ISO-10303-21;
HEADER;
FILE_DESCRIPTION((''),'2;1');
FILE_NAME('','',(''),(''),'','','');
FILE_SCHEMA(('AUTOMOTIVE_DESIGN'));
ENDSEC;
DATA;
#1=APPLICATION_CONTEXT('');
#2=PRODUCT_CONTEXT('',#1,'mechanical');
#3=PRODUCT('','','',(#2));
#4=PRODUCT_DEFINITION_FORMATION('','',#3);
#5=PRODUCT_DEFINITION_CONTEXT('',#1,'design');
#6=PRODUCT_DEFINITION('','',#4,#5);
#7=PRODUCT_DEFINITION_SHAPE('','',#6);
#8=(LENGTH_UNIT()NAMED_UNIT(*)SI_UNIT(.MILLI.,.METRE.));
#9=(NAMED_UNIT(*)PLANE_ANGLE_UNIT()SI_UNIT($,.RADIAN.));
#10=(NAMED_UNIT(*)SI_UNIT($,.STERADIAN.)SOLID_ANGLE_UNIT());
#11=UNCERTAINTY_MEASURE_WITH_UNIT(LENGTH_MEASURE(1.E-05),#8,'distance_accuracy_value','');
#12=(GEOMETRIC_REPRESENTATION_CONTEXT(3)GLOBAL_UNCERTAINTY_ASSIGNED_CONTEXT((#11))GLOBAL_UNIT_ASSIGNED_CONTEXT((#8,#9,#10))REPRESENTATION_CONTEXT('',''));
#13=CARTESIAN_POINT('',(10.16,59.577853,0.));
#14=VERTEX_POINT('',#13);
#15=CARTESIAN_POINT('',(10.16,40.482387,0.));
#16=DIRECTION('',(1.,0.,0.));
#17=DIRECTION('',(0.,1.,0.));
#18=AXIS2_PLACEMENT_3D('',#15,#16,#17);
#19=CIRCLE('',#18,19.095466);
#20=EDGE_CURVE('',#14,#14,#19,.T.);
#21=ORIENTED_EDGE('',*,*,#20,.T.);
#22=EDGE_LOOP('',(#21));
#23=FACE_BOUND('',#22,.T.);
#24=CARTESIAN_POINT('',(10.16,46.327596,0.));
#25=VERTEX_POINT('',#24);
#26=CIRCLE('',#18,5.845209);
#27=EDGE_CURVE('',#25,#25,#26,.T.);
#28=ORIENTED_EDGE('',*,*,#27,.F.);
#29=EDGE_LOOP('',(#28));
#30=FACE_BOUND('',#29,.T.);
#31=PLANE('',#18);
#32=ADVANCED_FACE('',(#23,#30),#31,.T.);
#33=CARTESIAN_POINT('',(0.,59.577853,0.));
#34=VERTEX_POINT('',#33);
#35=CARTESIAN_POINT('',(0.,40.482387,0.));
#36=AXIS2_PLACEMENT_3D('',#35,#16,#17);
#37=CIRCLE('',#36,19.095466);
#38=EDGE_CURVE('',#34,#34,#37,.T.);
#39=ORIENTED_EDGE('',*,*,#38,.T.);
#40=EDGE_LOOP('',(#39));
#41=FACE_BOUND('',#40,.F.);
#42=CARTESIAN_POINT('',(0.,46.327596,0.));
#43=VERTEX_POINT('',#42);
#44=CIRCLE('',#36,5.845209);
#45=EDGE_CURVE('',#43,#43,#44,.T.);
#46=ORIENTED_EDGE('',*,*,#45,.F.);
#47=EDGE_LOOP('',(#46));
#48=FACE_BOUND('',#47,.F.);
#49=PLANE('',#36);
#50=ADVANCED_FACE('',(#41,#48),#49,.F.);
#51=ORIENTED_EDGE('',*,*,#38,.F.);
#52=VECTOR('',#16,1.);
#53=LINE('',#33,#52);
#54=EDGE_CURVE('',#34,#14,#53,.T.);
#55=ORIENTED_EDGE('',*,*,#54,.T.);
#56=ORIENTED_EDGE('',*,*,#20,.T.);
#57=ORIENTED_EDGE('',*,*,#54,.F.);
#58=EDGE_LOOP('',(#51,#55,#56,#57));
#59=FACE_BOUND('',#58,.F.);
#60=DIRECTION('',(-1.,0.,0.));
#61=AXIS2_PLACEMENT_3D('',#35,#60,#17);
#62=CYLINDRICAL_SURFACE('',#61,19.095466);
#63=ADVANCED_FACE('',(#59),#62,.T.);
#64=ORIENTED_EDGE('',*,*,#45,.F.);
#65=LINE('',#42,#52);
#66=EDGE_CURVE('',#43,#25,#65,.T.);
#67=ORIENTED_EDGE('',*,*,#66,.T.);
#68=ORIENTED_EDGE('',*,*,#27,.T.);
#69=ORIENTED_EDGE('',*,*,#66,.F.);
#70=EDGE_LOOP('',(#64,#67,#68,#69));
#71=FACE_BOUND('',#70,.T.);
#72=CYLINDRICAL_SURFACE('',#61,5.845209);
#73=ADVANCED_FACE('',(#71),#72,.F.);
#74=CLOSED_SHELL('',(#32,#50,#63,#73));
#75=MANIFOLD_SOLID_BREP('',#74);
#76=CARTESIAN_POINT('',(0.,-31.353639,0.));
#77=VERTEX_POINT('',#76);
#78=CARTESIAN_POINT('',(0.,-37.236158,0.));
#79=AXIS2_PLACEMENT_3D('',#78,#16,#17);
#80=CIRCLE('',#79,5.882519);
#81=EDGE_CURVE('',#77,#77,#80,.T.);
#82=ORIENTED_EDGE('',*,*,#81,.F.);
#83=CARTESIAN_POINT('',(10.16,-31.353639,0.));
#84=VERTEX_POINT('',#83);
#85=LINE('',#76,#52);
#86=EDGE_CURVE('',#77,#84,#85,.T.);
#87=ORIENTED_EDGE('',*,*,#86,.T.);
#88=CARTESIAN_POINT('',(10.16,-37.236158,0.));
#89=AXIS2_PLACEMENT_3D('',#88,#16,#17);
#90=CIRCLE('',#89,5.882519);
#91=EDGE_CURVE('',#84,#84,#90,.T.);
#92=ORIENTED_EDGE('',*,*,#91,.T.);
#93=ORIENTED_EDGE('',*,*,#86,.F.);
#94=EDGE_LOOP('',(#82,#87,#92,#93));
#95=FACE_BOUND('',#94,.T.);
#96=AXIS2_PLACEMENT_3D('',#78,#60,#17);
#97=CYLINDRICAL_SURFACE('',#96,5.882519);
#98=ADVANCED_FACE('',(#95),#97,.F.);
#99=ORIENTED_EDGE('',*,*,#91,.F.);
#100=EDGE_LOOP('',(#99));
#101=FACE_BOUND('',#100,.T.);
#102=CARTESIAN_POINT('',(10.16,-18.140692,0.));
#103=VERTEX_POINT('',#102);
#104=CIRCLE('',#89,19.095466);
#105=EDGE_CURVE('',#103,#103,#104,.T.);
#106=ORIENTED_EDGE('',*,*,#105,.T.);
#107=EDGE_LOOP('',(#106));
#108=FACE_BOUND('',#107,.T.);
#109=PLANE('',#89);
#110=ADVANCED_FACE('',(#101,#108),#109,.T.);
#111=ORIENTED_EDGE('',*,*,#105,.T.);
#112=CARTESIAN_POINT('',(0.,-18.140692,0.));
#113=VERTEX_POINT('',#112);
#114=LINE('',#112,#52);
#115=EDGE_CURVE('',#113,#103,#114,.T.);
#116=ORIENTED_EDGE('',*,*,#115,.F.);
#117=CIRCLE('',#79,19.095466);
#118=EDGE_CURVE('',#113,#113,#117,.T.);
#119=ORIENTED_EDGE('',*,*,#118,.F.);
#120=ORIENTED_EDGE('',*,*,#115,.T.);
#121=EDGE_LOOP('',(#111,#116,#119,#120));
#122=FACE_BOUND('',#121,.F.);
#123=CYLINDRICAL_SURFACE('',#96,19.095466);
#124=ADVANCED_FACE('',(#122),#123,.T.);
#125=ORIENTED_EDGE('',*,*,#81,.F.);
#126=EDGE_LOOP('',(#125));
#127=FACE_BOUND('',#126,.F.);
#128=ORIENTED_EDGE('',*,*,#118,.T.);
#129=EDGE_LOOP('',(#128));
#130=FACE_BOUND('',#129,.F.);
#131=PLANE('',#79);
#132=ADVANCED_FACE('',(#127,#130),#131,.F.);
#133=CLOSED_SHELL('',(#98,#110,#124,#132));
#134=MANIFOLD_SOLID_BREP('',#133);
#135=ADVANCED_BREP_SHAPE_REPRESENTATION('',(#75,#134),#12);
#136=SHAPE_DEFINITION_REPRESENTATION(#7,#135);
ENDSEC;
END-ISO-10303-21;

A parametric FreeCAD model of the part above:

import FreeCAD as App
import Part
import Sketcher
Q = App.Units.Quantity

doc = App.newDocument("Part")
body = doc.addObject("PartDesign::Body", "Body")
body.AllowCompound = True

# Sketch on YZ plane
sketch1 = doc.addObject("Sketcher::SketchObject", "Sketch")
body.addObject(sketch1)
sketch1.AttachmentSupport = (doc.YZ_Plane, [""])
sketch1.MapMode = "FlatFace"
sketch1.addGeometry([
    Part.Circle(App.Vector(-37, 0, 0), App.Vector(0, 0, 1), 19),
    Part.Circle(App.Vector(-37, 0, 0), App.Vector(0, 0, 1), 6),
    Part.Circle(App.Vector(40, 0, 0), App.Vector(0, 0, 1), 19),
    Part.Circle(App.Vector(40, 0, 0), App.Vector(0, 0, 1), 6),
], False)
sketch1.addConstraint([
    Sketcher.Constraint("Coincident", 1, 3, 0, 3),
    Sketcher.Constraint("Coincident", 3, 3, 2, 3),
    Sketcher.Constraint("Equal", 0, 2),
    Sketcher.Constraint("PointOnObject", 0, 3, -1),
    Sketcher.Constraint("PointOnObject", 2, 3, -1),
    Sketcher.Constraint("Diameter", 0, Q("38.190932 mm")),
    Sketcher.Constraint("Diameter", 1, Q("11.765038 mm")),
    Sketcher.Constraint("Diameter", 3, Q("11.690418 mm")),
    Sketcher.Constraint("DistanceX", 0, 3, -1, 1, Q("37.236158 mm")),
    Sketcher.Constraint("DistanceX", -1, 1, 2, 3, Q("40.482387 mm")),
])
pad1 = doc.addObject("PartDesign::Pad", "Pad")
body.addObject(pad1)
pad1.Profile = sketch1
pad1.Length = Q("0.4 in")

doc.recompute()
